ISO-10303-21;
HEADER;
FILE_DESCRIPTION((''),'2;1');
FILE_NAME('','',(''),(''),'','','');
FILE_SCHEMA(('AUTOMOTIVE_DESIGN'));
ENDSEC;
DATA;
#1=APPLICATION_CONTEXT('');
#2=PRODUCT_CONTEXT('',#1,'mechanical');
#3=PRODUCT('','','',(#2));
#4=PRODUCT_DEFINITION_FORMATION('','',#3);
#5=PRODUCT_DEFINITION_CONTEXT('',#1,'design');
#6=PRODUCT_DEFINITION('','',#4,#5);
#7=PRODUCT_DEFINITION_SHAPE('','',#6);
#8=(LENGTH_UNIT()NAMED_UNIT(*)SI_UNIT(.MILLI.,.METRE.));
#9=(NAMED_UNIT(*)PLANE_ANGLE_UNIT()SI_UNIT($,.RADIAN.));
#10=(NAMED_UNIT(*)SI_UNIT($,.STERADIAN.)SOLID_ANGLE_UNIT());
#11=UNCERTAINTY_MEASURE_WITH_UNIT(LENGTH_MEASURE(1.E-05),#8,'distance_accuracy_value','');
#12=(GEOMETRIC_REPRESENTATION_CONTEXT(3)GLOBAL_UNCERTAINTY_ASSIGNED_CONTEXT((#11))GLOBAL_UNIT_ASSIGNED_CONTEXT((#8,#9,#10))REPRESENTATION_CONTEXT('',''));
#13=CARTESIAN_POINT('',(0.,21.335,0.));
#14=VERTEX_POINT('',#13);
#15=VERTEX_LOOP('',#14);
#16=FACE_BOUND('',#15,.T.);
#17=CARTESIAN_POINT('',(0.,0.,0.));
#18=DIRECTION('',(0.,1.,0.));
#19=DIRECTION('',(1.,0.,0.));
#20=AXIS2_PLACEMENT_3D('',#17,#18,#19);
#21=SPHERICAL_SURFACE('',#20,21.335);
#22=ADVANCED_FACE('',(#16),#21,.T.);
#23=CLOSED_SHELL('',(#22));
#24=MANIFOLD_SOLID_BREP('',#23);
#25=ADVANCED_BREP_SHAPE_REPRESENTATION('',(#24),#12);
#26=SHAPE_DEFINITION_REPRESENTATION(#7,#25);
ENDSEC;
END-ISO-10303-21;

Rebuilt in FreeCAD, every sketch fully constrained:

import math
import FreeCAD as App
import Part
import Sketcher

doc = App.newDocument("Part")
body = doc.addObject("PartDesign::Body", "Body")

# Sketch on XY plane
sketch1 = body.newObject("Sketcher::SketchObject", "Sketch")
sketch1.AttachmentSupport = (doc.getObject("XY_Plane"), [""])
sketch1.MapMode = "FlatFace"
sketch1.addGeometry(Part.ArcOfCircle(Part.Circle(App.Vector(0, 0, 0), App.Vector(0, 0, 1), 21), math.radians(-90), math.radians(90)), False)
sketch1.addGeometry(Part.LineSegment(App.Vector(0, 21, 0), App.Vector(0, -21, 0)), False)
sketch1.addConstraint(Sketcher.Constraint("Coincident", 0, 1, 1, 2))
sketch1.addConstraint(Sketcher.Constraint("Coincident", 1, 1, 0, 2))
sketch1.addConstraint(Sketcher.Constraint("Vertical", 1))
sketch1.addConstraint(Sketcher.Constraint("Coincident", 0, 3, -1, 1))
sketch1.addConstraint(Sketcher.Constraint("PointOnObject", 0, 1, -2))
sketch1.addConstraint(Sketcher.Constraint("Radius", 0, 21.335))
revolution = body.newObject("PartDesign::Revolution", "Revolution")
revolution.Profile = sketch1
revolution.ReferenceAxis = (sketch1, ["V_Axis"])
revolution.Angle = 360

doc.recompute()
